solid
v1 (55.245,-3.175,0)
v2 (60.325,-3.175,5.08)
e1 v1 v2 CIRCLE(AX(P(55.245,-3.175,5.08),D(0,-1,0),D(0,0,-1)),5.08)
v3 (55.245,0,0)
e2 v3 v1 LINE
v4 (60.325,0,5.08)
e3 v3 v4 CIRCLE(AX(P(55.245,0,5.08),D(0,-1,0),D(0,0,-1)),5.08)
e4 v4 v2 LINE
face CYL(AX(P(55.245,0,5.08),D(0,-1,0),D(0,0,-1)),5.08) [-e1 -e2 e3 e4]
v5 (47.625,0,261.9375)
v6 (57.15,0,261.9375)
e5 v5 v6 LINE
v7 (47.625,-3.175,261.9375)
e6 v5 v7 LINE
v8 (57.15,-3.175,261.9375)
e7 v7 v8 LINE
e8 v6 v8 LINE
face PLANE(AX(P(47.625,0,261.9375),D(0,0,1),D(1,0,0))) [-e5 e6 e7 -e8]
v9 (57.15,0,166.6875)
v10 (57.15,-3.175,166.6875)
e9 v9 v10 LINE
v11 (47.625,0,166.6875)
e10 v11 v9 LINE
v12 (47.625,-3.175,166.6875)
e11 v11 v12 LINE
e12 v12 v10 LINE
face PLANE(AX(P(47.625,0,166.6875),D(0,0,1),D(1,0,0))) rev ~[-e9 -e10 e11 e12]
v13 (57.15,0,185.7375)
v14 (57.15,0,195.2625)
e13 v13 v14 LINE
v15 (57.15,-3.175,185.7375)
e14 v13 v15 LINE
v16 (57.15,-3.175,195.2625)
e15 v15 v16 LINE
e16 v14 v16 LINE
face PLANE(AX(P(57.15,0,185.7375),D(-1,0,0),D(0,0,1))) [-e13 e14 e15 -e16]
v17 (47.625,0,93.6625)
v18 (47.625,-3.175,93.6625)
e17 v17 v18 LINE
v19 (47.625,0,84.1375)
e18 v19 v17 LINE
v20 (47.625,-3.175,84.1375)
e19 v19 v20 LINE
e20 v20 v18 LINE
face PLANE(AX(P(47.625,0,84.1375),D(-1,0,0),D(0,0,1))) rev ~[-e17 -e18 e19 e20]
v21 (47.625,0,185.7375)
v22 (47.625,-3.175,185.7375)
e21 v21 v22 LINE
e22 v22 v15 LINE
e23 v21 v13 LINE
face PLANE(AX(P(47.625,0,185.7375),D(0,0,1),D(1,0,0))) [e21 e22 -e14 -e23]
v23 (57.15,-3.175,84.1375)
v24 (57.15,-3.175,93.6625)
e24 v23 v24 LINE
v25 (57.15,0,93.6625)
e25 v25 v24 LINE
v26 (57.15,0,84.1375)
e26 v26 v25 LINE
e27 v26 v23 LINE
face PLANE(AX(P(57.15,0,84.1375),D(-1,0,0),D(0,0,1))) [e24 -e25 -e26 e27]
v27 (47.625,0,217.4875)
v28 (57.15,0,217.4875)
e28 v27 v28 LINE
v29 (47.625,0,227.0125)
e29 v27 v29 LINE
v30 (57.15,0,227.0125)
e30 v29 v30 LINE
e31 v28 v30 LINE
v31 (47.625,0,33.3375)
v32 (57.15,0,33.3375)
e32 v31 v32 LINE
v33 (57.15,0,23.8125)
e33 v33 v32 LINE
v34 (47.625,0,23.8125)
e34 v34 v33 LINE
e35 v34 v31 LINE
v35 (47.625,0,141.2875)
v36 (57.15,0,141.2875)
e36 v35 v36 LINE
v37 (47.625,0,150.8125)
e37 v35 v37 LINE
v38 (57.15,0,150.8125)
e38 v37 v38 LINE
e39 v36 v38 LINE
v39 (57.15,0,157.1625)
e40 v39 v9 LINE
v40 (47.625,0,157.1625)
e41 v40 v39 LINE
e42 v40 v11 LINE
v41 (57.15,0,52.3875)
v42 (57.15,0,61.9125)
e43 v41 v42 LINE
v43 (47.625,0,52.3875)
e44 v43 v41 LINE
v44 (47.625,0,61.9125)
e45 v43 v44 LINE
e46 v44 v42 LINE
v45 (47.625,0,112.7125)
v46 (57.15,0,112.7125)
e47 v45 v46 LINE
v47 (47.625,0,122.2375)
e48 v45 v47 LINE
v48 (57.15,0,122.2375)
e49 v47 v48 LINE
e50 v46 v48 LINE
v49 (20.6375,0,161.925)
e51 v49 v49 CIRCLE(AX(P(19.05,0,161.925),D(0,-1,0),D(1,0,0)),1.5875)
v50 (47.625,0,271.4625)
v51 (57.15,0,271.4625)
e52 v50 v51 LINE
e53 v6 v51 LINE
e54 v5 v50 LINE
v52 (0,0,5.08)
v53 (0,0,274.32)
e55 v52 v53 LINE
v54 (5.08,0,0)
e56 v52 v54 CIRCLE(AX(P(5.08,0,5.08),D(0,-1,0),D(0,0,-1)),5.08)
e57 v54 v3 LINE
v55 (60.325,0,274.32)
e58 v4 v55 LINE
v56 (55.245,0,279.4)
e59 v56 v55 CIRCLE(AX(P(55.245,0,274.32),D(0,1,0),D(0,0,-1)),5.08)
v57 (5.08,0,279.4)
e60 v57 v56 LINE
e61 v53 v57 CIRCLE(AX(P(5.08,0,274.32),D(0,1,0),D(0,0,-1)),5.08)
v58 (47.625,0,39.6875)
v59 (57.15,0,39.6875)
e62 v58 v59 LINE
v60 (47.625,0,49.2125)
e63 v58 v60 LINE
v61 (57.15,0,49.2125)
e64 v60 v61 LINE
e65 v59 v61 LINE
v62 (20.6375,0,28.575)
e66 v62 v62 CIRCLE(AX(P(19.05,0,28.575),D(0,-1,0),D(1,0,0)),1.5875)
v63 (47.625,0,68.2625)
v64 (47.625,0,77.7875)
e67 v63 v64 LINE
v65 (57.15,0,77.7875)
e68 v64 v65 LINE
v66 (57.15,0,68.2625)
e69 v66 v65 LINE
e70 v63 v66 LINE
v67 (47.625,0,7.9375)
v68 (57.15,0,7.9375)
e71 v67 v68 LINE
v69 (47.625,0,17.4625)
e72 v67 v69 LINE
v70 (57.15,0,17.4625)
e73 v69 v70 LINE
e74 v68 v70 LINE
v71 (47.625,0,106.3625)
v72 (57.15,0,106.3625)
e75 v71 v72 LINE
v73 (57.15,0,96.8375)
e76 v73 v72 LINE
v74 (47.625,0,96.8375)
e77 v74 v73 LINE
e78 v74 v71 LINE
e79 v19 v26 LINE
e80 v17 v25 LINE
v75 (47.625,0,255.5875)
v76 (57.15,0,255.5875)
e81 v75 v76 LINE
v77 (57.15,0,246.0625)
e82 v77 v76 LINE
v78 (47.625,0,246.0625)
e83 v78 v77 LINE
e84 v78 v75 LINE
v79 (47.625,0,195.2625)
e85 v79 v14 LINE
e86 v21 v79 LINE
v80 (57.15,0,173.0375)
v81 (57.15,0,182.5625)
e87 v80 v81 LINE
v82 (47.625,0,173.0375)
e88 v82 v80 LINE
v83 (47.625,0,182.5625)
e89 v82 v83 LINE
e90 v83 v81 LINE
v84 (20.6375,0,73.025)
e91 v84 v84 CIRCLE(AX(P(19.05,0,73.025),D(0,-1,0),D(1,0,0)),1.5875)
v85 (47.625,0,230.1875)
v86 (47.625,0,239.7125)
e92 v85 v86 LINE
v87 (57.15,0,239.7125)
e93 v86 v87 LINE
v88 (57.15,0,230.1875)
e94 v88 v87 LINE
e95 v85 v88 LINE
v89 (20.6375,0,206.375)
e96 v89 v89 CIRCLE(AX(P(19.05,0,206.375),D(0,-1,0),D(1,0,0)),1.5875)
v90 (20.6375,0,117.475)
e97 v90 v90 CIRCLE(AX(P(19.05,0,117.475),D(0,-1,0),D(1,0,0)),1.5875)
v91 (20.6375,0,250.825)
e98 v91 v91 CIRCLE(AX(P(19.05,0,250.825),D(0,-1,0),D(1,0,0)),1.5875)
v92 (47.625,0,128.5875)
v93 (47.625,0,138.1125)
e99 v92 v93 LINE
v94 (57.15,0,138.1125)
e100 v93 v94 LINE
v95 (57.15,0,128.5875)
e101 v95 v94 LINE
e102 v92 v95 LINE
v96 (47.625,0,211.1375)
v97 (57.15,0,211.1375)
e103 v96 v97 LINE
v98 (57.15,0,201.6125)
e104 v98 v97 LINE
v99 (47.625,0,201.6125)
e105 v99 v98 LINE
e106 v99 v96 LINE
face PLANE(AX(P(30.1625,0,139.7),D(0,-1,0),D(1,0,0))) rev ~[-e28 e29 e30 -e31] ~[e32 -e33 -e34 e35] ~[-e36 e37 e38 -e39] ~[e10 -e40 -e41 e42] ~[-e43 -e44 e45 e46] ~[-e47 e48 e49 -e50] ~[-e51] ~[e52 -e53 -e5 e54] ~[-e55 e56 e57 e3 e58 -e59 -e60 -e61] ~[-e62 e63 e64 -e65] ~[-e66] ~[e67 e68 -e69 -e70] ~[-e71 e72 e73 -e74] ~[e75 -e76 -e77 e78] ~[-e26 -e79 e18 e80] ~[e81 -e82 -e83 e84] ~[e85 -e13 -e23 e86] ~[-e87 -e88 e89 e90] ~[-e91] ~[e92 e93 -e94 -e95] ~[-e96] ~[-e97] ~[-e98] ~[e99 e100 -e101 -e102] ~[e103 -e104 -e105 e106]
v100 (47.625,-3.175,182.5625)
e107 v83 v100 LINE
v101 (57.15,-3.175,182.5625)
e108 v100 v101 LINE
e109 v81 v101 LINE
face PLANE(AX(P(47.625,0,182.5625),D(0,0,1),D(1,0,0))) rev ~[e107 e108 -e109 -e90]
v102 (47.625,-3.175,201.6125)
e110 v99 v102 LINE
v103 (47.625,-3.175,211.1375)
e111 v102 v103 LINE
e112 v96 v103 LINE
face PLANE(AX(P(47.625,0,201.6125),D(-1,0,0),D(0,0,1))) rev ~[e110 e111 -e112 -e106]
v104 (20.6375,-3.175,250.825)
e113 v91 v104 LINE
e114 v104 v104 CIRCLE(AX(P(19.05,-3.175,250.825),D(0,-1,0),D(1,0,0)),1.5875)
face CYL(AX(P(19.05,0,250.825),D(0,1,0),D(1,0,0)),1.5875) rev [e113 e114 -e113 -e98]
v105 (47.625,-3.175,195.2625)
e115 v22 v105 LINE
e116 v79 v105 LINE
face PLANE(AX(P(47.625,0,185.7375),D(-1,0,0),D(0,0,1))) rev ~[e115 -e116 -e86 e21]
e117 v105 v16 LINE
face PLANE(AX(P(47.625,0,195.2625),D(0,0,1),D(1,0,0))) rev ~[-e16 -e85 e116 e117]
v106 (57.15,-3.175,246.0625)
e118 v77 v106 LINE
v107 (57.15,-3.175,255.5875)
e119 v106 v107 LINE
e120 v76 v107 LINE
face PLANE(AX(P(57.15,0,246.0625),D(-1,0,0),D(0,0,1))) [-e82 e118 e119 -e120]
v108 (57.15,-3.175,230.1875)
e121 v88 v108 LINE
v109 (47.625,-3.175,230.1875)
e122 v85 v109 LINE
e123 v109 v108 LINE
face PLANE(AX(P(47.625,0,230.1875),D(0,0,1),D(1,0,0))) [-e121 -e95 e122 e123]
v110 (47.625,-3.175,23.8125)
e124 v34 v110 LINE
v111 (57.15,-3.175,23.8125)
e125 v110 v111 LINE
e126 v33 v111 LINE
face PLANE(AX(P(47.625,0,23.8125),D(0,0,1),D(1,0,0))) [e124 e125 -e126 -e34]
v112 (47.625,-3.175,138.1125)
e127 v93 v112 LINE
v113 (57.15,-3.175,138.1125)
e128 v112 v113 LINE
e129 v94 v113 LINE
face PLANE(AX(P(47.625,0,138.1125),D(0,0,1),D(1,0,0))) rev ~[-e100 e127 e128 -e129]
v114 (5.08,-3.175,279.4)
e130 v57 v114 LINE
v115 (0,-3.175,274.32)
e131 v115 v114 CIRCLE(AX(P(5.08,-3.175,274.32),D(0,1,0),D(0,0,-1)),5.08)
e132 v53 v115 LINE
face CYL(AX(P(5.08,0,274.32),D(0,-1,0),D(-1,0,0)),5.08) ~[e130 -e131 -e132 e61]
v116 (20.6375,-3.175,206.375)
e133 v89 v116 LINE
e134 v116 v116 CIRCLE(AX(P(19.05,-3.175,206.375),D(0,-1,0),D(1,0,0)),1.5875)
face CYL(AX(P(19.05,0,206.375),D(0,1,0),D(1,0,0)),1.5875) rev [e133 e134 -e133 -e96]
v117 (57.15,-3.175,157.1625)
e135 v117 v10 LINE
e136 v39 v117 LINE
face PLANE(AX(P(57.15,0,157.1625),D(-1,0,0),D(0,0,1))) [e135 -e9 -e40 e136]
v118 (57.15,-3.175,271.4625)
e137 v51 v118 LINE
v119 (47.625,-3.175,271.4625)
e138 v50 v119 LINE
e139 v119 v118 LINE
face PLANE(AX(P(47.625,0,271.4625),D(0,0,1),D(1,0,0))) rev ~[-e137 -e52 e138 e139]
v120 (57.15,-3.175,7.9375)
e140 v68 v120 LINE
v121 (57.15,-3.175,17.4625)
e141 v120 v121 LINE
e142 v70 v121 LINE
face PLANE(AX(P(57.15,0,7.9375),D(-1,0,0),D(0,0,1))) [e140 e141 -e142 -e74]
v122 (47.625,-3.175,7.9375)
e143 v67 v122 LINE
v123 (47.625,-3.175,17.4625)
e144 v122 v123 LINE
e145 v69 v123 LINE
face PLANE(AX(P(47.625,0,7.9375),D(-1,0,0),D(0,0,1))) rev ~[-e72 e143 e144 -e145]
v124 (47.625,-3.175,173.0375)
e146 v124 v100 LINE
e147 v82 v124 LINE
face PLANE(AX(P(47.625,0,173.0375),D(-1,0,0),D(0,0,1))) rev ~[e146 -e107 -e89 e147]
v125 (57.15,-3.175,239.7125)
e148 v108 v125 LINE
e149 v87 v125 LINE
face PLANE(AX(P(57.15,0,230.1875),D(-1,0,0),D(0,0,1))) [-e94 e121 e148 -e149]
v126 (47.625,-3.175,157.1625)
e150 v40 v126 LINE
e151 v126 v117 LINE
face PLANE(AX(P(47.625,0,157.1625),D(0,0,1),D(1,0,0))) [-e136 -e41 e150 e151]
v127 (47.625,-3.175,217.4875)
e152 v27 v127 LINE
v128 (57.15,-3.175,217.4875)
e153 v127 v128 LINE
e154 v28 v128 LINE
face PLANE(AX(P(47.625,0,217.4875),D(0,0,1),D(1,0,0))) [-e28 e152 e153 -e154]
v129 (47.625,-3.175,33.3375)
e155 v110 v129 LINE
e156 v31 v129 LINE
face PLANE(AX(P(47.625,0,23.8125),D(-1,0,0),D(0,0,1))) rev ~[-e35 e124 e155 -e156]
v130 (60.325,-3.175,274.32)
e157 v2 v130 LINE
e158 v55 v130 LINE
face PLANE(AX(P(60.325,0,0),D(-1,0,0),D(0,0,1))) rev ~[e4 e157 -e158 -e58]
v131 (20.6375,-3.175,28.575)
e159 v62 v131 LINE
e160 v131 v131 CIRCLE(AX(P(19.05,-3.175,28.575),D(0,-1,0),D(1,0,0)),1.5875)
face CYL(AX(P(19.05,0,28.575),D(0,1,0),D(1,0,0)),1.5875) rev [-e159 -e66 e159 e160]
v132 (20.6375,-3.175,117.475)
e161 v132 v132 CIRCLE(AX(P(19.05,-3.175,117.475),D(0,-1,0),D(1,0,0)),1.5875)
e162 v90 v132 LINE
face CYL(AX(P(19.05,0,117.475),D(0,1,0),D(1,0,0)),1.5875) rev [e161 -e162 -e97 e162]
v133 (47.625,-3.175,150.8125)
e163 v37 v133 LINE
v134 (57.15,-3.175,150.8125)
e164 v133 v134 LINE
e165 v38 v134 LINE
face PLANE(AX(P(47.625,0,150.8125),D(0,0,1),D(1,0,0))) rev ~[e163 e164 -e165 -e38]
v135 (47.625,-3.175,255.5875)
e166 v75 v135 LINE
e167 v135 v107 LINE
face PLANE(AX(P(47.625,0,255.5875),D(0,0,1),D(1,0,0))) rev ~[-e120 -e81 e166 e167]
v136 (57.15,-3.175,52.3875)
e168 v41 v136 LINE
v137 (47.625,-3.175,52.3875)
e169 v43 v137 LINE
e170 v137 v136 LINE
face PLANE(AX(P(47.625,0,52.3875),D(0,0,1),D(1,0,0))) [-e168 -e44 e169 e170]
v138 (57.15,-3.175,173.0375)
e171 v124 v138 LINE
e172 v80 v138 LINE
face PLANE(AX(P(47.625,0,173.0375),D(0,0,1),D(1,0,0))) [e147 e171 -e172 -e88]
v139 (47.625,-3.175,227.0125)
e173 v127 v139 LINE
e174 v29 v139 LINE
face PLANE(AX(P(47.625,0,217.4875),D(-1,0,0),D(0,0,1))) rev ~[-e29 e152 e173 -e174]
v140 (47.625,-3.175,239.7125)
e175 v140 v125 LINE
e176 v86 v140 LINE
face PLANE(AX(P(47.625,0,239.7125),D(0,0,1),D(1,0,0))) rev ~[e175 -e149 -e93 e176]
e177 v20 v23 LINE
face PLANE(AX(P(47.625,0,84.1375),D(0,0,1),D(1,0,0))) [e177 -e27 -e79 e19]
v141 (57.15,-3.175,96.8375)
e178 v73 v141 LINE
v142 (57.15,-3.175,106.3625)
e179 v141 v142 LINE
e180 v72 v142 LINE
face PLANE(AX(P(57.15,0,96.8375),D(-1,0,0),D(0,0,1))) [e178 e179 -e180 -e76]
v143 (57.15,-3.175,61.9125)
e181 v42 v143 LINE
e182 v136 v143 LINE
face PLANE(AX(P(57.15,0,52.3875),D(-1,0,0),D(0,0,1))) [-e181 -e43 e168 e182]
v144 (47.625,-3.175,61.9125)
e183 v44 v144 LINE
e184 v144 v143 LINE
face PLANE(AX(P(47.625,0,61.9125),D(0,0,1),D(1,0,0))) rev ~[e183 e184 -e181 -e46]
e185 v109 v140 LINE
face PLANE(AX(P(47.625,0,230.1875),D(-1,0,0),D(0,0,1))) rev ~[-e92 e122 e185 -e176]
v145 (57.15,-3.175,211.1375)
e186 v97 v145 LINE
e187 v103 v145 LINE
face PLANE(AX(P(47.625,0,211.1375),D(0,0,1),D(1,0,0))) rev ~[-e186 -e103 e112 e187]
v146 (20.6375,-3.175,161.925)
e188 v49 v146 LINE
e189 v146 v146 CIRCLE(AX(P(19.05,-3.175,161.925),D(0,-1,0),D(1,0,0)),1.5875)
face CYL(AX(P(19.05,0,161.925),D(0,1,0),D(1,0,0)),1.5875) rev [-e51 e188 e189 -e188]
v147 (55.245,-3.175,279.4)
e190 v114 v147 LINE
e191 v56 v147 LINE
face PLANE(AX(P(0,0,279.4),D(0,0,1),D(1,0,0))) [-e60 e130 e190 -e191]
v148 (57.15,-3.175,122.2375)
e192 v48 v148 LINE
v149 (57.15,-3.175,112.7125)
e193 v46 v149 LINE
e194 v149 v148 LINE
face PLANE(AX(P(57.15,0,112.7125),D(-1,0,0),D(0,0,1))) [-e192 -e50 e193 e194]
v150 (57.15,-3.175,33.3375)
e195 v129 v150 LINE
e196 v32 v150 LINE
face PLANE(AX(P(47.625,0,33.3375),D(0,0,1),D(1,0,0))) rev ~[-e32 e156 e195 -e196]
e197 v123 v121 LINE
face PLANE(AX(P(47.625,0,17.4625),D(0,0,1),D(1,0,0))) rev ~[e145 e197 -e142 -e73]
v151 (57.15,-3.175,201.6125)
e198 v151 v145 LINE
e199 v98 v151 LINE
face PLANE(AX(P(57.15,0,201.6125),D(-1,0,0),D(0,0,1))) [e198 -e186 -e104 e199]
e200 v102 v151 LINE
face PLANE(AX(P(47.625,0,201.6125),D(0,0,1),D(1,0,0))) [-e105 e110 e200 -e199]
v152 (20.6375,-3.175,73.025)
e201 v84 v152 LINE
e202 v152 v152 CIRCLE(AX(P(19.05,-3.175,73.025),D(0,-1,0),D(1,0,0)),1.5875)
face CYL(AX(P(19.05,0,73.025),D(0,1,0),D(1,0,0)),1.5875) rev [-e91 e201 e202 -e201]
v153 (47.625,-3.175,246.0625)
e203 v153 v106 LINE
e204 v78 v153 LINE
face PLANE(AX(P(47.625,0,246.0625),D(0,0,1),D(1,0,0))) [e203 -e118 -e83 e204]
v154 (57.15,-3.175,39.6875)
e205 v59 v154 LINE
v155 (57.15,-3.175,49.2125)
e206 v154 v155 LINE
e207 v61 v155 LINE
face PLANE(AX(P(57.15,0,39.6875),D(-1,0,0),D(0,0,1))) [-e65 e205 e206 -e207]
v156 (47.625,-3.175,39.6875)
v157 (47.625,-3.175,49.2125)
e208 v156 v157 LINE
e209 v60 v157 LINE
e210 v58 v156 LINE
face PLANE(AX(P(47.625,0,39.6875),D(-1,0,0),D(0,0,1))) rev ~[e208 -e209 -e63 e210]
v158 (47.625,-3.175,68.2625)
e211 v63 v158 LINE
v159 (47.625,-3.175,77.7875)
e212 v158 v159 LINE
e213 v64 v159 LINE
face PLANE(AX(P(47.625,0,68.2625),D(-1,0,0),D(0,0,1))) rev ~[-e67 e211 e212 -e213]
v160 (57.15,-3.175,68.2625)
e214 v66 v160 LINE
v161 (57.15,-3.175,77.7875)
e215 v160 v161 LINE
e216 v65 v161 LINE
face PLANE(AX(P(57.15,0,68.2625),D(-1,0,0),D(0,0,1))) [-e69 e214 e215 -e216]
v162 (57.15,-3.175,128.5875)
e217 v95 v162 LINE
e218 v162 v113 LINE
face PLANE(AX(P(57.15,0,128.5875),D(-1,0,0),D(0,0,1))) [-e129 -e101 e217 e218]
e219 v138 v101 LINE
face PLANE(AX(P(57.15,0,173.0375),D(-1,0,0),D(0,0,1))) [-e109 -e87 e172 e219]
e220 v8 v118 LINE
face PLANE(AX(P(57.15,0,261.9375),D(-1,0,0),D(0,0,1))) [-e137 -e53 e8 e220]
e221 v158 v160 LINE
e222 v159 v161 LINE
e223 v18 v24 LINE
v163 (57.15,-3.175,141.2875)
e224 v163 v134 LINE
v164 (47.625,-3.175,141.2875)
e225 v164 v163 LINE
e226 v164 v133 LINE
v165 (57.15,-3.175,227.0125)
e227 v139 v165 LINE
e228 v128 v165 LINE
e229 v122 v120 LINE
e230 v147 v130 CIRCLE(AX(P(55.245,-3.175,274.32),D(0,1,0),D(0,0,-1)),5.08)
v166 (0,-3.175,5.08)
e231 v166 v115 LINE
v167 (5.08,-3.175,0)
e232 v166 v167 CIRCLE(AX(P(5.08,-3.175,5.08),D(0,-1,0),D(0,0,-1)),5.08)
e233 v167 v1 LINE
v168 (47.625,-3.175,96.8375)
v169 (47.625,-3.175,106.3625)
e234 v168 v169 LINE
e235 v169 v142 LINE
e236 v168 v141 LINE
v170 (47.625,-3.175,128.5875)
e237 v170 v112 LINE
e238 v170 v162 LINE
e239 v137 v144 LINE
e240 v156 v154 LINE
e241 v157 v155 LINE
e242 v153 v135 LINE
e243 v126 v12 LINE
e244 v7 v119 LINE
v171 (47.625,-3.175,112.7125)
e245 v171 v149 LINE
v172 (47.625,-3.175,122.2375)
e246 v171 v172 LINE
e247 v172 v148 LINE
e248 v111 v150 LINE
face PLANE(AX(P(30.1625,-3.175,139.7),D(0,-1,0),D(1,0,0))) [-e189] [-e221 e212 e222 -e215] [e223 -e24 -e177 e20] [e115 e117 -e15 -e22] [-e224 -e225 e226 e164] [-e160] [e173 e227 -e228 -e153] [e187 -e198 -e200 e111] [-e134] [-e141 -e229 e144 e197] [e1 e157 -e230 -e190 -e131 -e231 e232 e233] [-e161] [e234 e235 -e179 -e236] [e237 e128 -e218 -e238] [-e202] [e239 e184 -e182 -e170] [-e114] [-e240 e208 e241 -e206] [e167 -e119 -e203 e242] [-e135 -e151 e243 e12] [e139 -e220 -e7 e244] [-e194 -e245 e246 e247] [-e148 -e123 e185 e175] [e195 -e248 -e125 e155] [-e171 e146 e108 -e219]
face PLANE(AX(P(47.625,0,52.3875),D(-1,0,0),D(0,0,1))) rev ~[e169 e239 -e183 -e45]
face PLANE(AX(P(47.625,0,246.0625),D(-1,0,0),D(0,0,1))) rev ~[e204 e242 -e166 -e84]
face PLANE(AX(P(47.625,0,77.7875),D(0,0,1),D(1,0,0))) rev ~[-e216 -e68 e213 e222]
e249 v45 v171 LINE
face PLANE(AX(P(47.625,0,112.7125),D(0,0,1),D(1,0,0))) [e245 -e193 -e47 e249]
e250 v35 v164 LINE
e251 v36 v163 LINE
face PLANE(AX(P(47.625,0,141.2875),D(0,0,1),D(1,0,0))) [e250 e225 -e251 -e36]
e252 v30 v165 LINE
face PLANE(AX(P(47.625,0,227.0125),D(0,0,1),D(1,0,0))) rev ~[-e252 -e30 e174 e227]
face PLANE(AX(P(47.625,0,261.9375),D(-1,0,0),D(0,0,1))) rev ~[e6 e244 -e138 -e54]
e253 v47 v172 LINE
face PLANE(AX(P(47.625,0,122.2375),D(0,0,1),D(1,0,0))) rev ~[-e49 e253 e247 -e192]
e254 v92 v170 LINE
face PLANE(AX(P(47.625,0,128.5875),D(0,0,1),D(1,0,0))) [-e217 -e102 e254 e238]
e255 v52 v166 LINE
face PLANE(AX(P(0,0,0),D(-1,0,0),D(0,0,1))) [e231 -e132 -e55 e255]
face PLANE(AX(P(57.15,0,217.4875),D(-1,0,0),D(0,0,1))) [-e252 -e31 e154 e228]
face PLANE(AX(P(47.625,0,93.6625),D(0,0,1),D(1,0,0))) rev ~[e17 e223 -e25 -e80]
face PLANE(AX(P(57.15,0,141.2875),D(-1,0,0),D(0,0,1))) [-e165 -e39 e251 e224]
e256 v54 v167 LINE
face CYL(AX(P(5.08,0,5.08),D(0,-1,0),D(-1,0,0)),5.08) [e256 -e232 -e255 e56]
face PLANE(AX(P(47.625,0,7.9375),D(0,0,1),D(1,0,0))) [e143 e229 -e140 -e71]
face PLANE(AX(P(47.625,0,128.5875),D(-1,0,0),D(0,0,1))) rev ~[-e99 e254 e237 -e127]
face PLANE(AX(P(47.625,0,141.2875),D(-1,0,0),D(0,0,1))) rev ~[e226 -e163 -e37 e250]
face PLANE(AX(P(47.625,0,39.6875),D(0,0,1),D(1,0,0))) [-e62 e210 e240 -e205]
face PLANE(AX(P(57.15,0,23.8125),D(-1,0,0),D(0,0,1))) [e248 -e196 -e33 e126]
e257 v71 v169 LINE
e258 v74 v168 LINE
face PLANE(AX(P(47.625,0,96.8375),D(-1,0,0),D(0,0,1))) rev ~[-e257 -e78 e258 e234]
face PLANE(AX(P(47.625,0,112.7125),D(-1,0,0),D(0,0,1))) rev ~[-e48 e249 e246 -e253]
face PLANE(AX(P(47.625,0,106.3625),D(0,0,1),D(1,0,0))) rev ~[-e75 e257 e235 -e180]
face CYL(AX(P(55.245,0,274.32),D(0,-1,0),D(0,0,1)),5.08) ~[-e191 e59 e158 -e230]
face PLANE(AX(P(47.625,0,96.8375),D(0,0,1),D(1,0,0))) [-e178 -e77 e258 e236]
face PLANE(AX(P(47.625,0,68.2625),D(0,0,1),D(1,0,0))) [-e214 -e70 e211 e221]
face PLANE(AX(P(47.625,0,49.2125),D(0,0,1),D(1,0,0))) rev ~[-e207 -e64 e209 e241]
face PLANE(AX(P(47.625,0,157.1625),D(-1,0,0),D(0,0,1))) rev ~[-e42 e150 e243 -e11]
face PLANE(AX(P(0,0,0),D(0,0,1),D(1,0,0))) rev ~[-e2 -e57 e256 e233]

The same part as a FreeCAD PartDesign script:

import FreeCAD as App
import Part
import Sketcher

V = App.Vector
Q = App.Units.Quantity


def edges_at(feature, points):
    """Names of the edges that pass closest to the given points."""
    edges = feature.Shape.Edges
    near = lambda p: min(range(len(edges)), key=lambda i: edges[i].distToShape(Part.Vertex(*p))[0])
    return sorted({f"Edge{near(p) + 1}" for p in points})

doc = App.newDocument("Part")
body = doc.addObject("PartDesign::Body", "Body")

# Sketch on XZ plane
sketch1 = doc.addObject("Sketcher::SketchObject", "Sketch")
body.addObject(sketch1)
sketch1.AttachmentSupport = (doc.XZ_Plane, [""])
sketch1.MapMode = "FlatFace"
sketch1.addGeometry(Part.LineSegment(V(0, 279.4, 0), V(0, 0, 0)), False)
sketch1.addGeometry(Part.LineSegment(V(0, 0, 0), V(60.325, 0, 0)), False)
sketch1.addGeometry(Part.LineSegment(V(60.325, 0, 0), V(60.325, 279.4, 0)), False)
sketch1.addGeometry(Part.LineSegment(V(60.325, 279.4, 0), V(0, 279.4, 0)), False)
sketch1.addGeometry(Part.Circle(V(19.05, 28.575, 0), V(0, 0, 1), 1.5875), False)
sketch1.addGeometry(Part.Circle(V(19.05, 73.025, 0), V(0, 0, 1), 1.5875), False)
sketch1.addGeometry(Part.Circle(V(19.05, 117.475, 0), V(0, 0, 1), 1.5875), False)
sketch1.addGeometry(Part.LineSegment(V(57.15, 7.9375, 0), V(47.625, 7.9375, 0)), False)
sketch1.addGeometry(Part.LineSegment(V(47.625, 7.9375, 0), V(47.625, 17.4625, 0)), False)
sketch1.addGeometry(Part.LineSegment(V(47.625, 17.4625, 0), V(57.15, 17.4625, 0)), False)
sketch1.addGeometry(Part.LineSegment(V(57.15, 17.4625, 0), V(57.15, 7.9375, 0)), False)
sketch1.addGeometry(Part.LineSegment(V(57.15, 23.8125, 0), V(47.625, 23.8125, 0)), False)
sketch1.addGeometry(Part.LineSegment(V(47.625, 23.8125, 0), V(47.625, 33.3375, 0)), False)
sketch1.addGeometry(Part.LineSegment(V(47.625, 33.3375, 0), V(57.15, 33.3375, 0)), False)
sketch1.addGeometry(Part.LineSegment(V(57.15, 33.3375, 0), V(57.15, 23.8125, 0)), False)
sketch1.addGeometry(Part.LineSegment(V(57.15, 39.6875, 0), V(47.625, 39.6875, 0)), False)
sketch1.addGeometry(Part.LineSegment(V(47.625, 39.6875, 0), V(47.625, 49.2125, 0)), False)
sketch1.addGeometry(Part.LineSegment(V(47.625, 49.2125, 0), V(57.15, 49.2125, 0)), False)
sketch1.addGeometry(Part.LineSegment(V(57.15, 49.2125, 0), V(57.15, 39.6875, 0)), False)
sketch1.addGeometry(Part.LineSegment(V(57.15, 52.3875, 0), V(47.625, 52.3875, 0)), False)
sketch1.addGeometry(Part.LineSegment(V(47.625, 52.3875, 0), V(47.625, 61.9125, 0)), False)
sketch1.addGeometry(Part.LineSegment(V(47.625, 61.9125, 0), V(57.15, 61.9125, 0)), False)
sketch1.addGeometry(Part.LineSegment(V(57.15, 61.9125, 0), V(57.15, 52.3875, 0)), False)
sketch1.addGeometry(Part.LineSegment(V(57.15, 68.2625, 0), V(47.625, 68.2625, 0)), False)
sketch1.addGeometry(Part.LineSegment(V(47.625, 68.2625, 0), V(47.625, 77.7875, 0)), False)
sketch1.addGeometry(Part.LineSegment(V(47.625, 77.7875, 0), V(57.15, 77.7875, 0)), False)
sketch1.addGeometry(Part.LineSegment(V(57.15, 77.7875, 0), V(57.15, 68.2625, 0)), False)
sketch1.addGeometry(Part.LineSegment(V(57.15, 84.1375, 0), V(47.625, 84.1375, 0)), False)
sketch1.addGeometry(Part.LineSegment(V(47.625, 84.1375, 0), V(47.625, 93.6625, 0)), False)
sketch1.addGeometry(Part.LineSegment(V(47.625, 93.6625, 0), V(57.15, 93.6625, 0)), False)
sketch1.addGeometry(Part.LineSegment(V(57.15, 93.6625, 0), V(57.15, 84.1375, 0)), False)
sketch1.addGeometry(Part.LineSegment(V(57.15, 96.8375, 0), V(47.625, 96.8375, 0)), False)
sketch1.addGeometry(Part.LineSegment(V(47.625, 96.8375, 0), V(47.625, 106.3625, 0)), False)
sketch1.addGeometry(Part.LineSegment(V(47.625, 106.3625, 0), V(57.15, 106.3625, 0)), False)
sketch1.addGeometry(Part.LineSegment(V(57.15, 106.3625, 0), V(57.15, 96.8375, 0)), False)
sketch1.addGeometry(Part.LineSegment(V(57.15, 112.7125, 0), V(47.625, 112.7125, 0)), False)
sketch1.addGeometry(Part.LineSegment(V(47.625, 112.7125, 0), V(47.625, 122.2375, 0)), False)
sketch1.addGeometry(Part.LineSegment(V(47.625, 122.2375, 0), V(57.15, 122.2375, 0)), False)
sketch1.addGeometry(Part.LineSegment(V(57.15, 122.2375, 0), V(57.15, 112.7125, 0)), False)
sketch1.addGeometry(Part.LineSegment(V(57.15, 128.5875, 0), V(47.625, 128.5875, 0)), False)
sketch1.addGeometry(Part.LineSegment(V(47.625, 128.5875, 0), V(47.625, 138.1125, 0)), False)
sketch1.addGeometry(Part.LineSegment(V(47.625, 138.1125, 0), V(57.15, 138.1125, 0)), False)
sketch1.addGeometry(Part.LineSegment(V(57.15, 138.1125, 0), V(57.15, 128.5875, 0)), False)
sketch1.addGeometry(Part.Circle(V(19.05, 161.925, 0), V(0, 0, 1), 1.5875), False)
sketch1.addGeometry(Part.Circle(V(19.05, 206.375, 0), V(0, 0, 1), 1.5875), False)
sketch1.addGeometry(Part.Circle(V(19.05, 250.825, 0), V(0, 0, 1), 1.5875), False)
sketch1.addGeometry(Part.LineSegment(V(57.15, 141.2875, 0), V(47.625, 141.2875, 0)), False)
sketch1.addGeometry(Part.LineSegment(V(47.625, 141.2875, 0), V(47.625, 150.8125, 0)), False)
sketch1.addGeometry(Part.LineSegment(V(47.625, 150.8125, 0), V(57.15, 150.8125, 0)), False)
sketch1.addGeometry(Part.LineSegment(V(57.15, 150.8125, 0), V(57.15, 141.2875, 0)), False)
sketch1.addGeometry(Part.LineSegment(V(57.15, 157.1625, 0), V(47.625, 157.1625, 0)), False)
sketch1.addGeometry(Part.LineSegment(V(47.625, 157.1625, 0), V(47.625, 166.6875, 0)), False)
sketch1.addGeometry(Part.LineSegment(V(47.625, 166.6875, 0), V(57.15, 166.6875, 0)), False)
sketch1.addGeometry(Part.LineSegment(V(57.15, 166.6875, 0), V(57.15, 157.1625, 0)), False)
sketch1.addGeometry(Part.LineSegment(V(57.15, 173.0375, 0), V(47.625, 173.0375, 0)), False)
sketch1.addGeometry(Part.LineSegment(V(47.625, 173.0375, 0), V(47.625, 182.5625, 0)), False)
sketch1.addGeometry(Part.LineSegment(V(47.625, 182.5625, 0), V(57.15, 182.5625, 0)), False)
sketch1.addGeometry(Part.LineSegment(V(57.15, 182.5625, 0), V(57.15, 173.0375, 0)), False)
sketch1.addGeometry(Part.LineSegment(V(57.15, 185.7375, 0), V(47.625, 185.7375, 0)), False)
sketch1.addGeometry(Part.LineSegment(V(47.625, 185.7375, 0), V(47.625, 195.2625, 0)), False)
sketch1.addGeometry(Part.LineSegment(V(47.625, 195.2625, 0), V(57.15, 195.2625, 0)), False)
sketch1.addGeometry(Part.LineSegment(V(57.15, 195.2625, 0), V(57.15, 185.7375, 0)), False)
sketch1.addGeometry(Part.LineSegment(V(57.15, 201.6125, 0), V(47.625, 201.6125, 0)), False)
sketch1.addGeometry(Part.LineSegment(V(47.625, 201.6125, 0), V(47.625, 211.1375, 0)), False)
sketch1.addGeometry(Part.LineSegment(V(47.625, 211.1375, 0), V(57.15, 211.1375, 0)), False)
sketch1.addGeometry(Part.LineSegment(V(57.15, 211.1375, 0), V(57.15, 201.6125, 0)), False)
sketch1.addGeometry(Part.LineSegment(V(57.15, 217.4875, 0), V(47.625, 217.4875, 0)), False)
sketch1.addGeometry(Part.LineSegment(V(47.625, 217.4875, 0), V(47.625, 227.0125, 0)), False)
sketch1.addGeometry(Part.LineSegment(V(47.625, 227.0125, 0), V(57.15, 227.0125, 0)), False)
sketch1.addGeometry(Part.LineSegment(V(57.15, 227.0125, 0), V(57.15, 217.4875, 0)), False)
sketch1.addGeometry(Part.LineSegment(V(57.15, 230.1875, 0), V(47.625, 230.1875, 0)), False)
sketch1.addGeometry(Part.LineSegment(V(47.625, 230.1875, 0), V(47.625, 239.7125, 0)), False)
sketch1.addGeometry(Part.LineSegment(V(47.625, 239.7125, 0), V(57.15, 239.7125, 0)), False)
sketch1.addGeometry(Part.LineSegment(V(57.15, 239.7125, 0), V(57.15, 230.1875, 0)), False)
sketch1.addGeometry(Part.LineSegment(V(57.15, 246.0625, 0), V(47.625, 246.0625, 0)), False)
sketch1.addGeometry(Part.LineSegment(V(47.625, 246.0625, 0), V(47.625, 255.5875, 0)), False)
sketch1.addGeometry(Part.LineSegment(V(47.625, 255.5875, 0), V(57.15, 255.5875, 0)), False)
sketch1.addGeometry(Part.LineSegment(V(57.15, 255.5875, 0), V(57.15, 246.0625, 0)), False)
sketch1.addGeometry(Part.LineSegment(V(57.15, 261.9375, 0), V(47.625, 261.9375, 0)), False)
sketch1.addGeometry(Part.LineSegment(V(47.625, 261.9375, 0), V(47.625, 271.4625, 0)), False)
sketch1.addGeometry(Part.LineSegment(V(47.625, 271.4625, 0), V(57.15, 271.4625, 0)), False)
sketch1.addGeometry(Part.LineSegment(V(57.15, 271.4625, 0), V(57.15, 261.9375, 0)), False)
sketch1.addConstraint(Sketcher.Constraint("Coincident", 0, 2, 1, 1))
sketch1.addConstraint(Sketcher.Constraint("Coincident", 1, 2, 2, 1))
sketch1.addConstraint(Sketcher.Constraint("Coincident", 2, 2, 3, 1))
sketch1.addConstraint(Sketcher.Constraint("Coincident", 3, 2, 0, 1))
sketch1.addConstraint(Sketcher.Constraint("Coincident", 7, 2, 8, 1))
sketch1.addConstraint(Sketcher.Constraint("Coincident", 8, 2, 9, 1))
sketch1.addConstraint(Sketcher.Constraint("Coincident", 9, 2, 10, 1))
sketch1.addConstraint(Sketcher.Constraint("Coincident", 10, 2, 7, 1))
sketch1.addConstraint(Sketcher.Constraint("Coincident", 11, 2, 12, 1))
sketch1.addConstraint(Sketcher.Constraint("Coincident", 12, 2, 13, 1))
sketch1.addConstraint(Sketcher.Constraint("Coincident", 13, 2, 14, 1))
sketch1.addConstraint(Sketcher.Constraint("Coincident", 14, 2, 11, 1))
sketch1.addConstraint(Sketcher.Constraint("Coincident", 15, 2, 16, 1))
sketch1.addConstraint(Sketcher.Constraint("Coincident", 16, 2, 17, 1))
sketch1.addConstraint(Sketcher.Constraint("Coincident", 17, 2, 18, 1))
sketch1.addConstraint(Sketcher.Constraint("Coincident", 18, 2, 15, 1))
sketch1.addConstraint(Sketcher.Constraint("Coincident", 19, 2, 20, 1))
sketch1.addConstraint(Sketcher.Constraint("Coincident", 20, 2, 21, 1))
sketch1.addConstraint(Sketcher.Constraint("Coincident", 21, 2, 22, 1))
sketch1.addConstraint(Sketcher.Constraint("Coincident", 22, 2, 19, 1))
sketch1.addConstraint(Sketcher.Constraint("Coincident", 23, 2, 24, 1))
sketch1.addConstraint(Sketcher.Constraint("Coincident", 24, 2, 25, 1))
sketch1.addConstraint(Sketcher.Constraint("Coincident", 25, 2, 26, 1))
sketch1.addConstraint(Sketcher.Constraint("Coincident", 26, 2, 23, 1))
sketch1.addConstraint(Sketcher.Constraint("Coincident", 27, 2, 28, 1))
sketch1.addConstraint(Sketcher.Constraint("Coincident", 28, 2, 29, 1))
sketch1.addConstraint(Sketcher.Constraint("Coincident", 29, 2, 30, 1))
sketch1.addConstraint(Sketcher.Constraint("Coincident", 30, 2, 27, 1))
sketch1.addConstraint(Sketcher.Constraint("Coincident", 31, 2, 32, 1))
sketch1.addConstraint(Sketcher.Constraint("Coincident", 32, 2, 33, 1))
sketch1.addConstraint(Sketcher.Constraint("Coincident", 33, 2, 34, 1))
sketch1.addConstraint(Sketcher.Constraint("Coincident", 34, 2, 31, 1))
sketch1.addConstraint(Sketcher.Constraint("Coincident", 35, 2, 36, 1))
sketch1.addConstraint(Sketcher.Constraint("Coincident", 36, 2, 37, 1))
sketch1.addConstraint(Sketcher.Constraint("Coincident", 37, 2, 38, 1))
sketch1.addConstraint(Sketcher.Constraint("Coincident", 38, 2, 35, 1))
sketch1.addConstraint(Sketcher.Constraint("Coincident", 39, 2, 40, 1))
sketch1.addConstraint(Sketcher.Constraint("Coincident", 40, 2, 41, 1))
sketch1.addConstraint(Sketcher.Constraint("Coincident", 41, 2, 42, 1))
sketch1.addConstraint(Sketcher.Constraint("Coincident", 42, 2, 39, 1))
sketch1.addConstraint(Sketcher.Constraint("Coincident", 46, 2, 47, 1))
sketch1.addConstraint(Sketcher.Constraint("Coincident", 47, 2, 48, 1))
sketch1.addConstraint(Sketcher.Constraint("Coincident", 48, 2, 49, 1))
sketch1.addConstraint(Sketcher.Constraint("Coincident", 49, 2, 46, 1))
sketch1.addConstraint(Sketcher.Constraint("Coincident", 50, 2, 51, 1))
sketch1.addConstraint(Sketcher.Constraint("Coincident", 51, 2, 52, 1))
sketch1.addConstraint(Sketcher.Constraint("Coincident", 52, 2, 53, 1))
sketch1.addConstraint(Sketcher.Constraint("Coincident", 53, 2, 50, 1))
sketch1.addConstraint(Sketcher.Constraint("Coincident", 54, 2, 55, 1))
sketch1.addConstraint(Sketcher.Constraint("Coincident", 55, 2, 56, 1))
sketch1.addConstraint(Sketcher.Constraint("Coincident", 56, 2, 57, 1))
sketch1.addConstraint(Sketcher.Constraint("Coincident", 57, 2, 54, 1))
sketch1.addConstraint(Sketcher.Constraint("Coincident", 58, 2, 59, 1))
sketch1.addConstraint(Sketcher.Constraint("Coincident", 59, 2, 60, 1))
sketch1.addConstraint(Sketcher.Constraint("Coincident", 60, 2, 61, 1))
sketch1.addConstraint(Sketcher.Constraint("Coincident", 61, 2, 58, 1))
sketch1.addConstraint(Sketcher.Constraint("Coincident", 62, 2, 63, 1))
sketch1.addConstraint(Sketcher.Constraint("Coincident", 63, 2, 64, 1))
sketch1.addConstraint(Sketcher.Constraint("Coincident", 64, 2, 65, 1))
sketch1.addConstraint(Sketcher.Constraint("Coincident", 65, 2, 62, 1))
sketch1.addConstraint(Sketcher.Constraint("Coincident", 66, 2, 67, 1))
sketch1.addConstraint(Sketcher.Constraint("Coincident", 67, 2, 68, 1))
sketch1.addConstraint(Sketcher.Constraint("Coincident", 68, 2, 69, 1))
sketch1.addConstraint(Sketcher.Constraint("Coincident", 69, 2, 66, 1))
sketch1.addConstraint(Sketcher.Constraint("Coincident", 70, 2, 71, 1))
sketch1.addConstraint(Sketcher.Constraint("Coincident", 71, 2, 72, 1))
sketch1.addConstraint(Sketcher.Constraint("Coincident", 72, 2, 73, 1))
sketch1.addConstraint(Sketcher.Constraint("Coincident", 73, 2, 70, 1))
sketch1.addConstraint(Sketcher.Constraint("Coincident", 74, 2, 75, 1))
sketch1.addConstraint(Sketcher.Constraint("Coincident", 75, 2, 76, 1))
sketch1.addConstraint(Sketcher.Constraint("Coincident", 76, 2, 77, 1))
sketch1.addConstraint(Sketcher.Constraint("Coincident", 77, 2, 74, 1))
sketch1.addConstraint(Sketcher.Constraint("Coincident", 78, 2, 79, 1))
sketch1.addConstraint(Sketcher.Constraint("Coincident", 79, 2, 80, 1))
sketch1.addConstraint(Sketcher.Constraint("Coincident", 80, 2, 81, 1))
sketch1.addConstraint(Sketcher.Constraint("Coincident", 81, 2, 78, 1))
sketch1.addConstraint(Sketcher.Constraint("Vertical", 0))
sketch1.addConstraint(Sketcher.Constraint("Horizontal", 1))
sketch1.addConstraint(Sketcher.Constraint("Vertical", 2))
sketch1.addConstraint(Sketcher.Constraint("Horizontal", 3))
sketch1.addConstraint(Sketcher.Constraint("Horizontal", 7))
sketch1.addConstraint(Sketcher.Constraint("Vertical", 8))
sketch1.addConstraint(Sketcher.Constraint("Horizontal", 9))
sketch1.addConstraint(Sketcher.Constraint("Vertical", 10))
sketch1.addConstraint(Sketcher.Constraint("Horizontal", 11))
sketch1.addConstraint(Sketcher.Constraint("Vertical", 12))
sketch1.addConstraint(Sketcher.Constraint("Horizontal", 13))
sketch1.addConstraint(Sketcher.Constraint("Vertical", 14))
sketch1.addConstraint(Sketcher.Constraint("Horizontal", 15))
sketch1.addConstraint(Sketcher.Constraint("Vertical", 16))
sketch1.addConstraint(Sketcher.Constraint("Horizontal", 17))
sketch1.addConstraint(Sketcher.Constraint("Vertical", 18))
sketch1.addConstraint(Sketcher.Constraint("Horizontal", 19))
sketch1.addConstraint(Sketcher.Constraint("Vertical", 20))
sketch1.addConstraint(Sketcher.Constraint("Horizontal", 21))
sketch1.addConstraint(Sketcher.Constraint("Vertical", 22))
sketch1.addConstraint(Sketcher.Constraint("Horizontal", 23))
sketch1.addConstraint(Sketcher.Constraint("Vertical", 24))
sketch1.addConstraint(Sketcher.Constraint("Horizontal", 25))
sketch1.addConstraint(Sketcher.Constraint("Vertical", 26))
sketch1.addConstraint(Sketcher.Constraint("Horizontal", 27))
sketch1.addConstraint(Sketcher.Constraint("Vertical", 28))
sketch1.addConstraint(Sketcher.Constraint("Horizontal", 29))
sketch1.addConstraint(Sketcher.Constraint("Vertical", 30))
sketch1.addConstraint(Sketcher.Constraint("Horizontal", 31))
sketch1.addConstraint(Sketcher.Constraint("Vertical", 32))
sketch1.addConstraint(Sketcher.Constraint("Horizontal", 33))
sketch1.addConstraint(Sketcher.Constraint("Vertical", 34))
sketch1.addConstraint(Sketcher.Constraint("Horizontal", 35))
sketch1.addConstraint(Sketcher.Constraint("Vertical", 36))
sketch1.addConstraint(Sketcher.Constraint("Horizontal", 37))
sketch1.addConstraint(Sketcher.Constraint("Vertical", 38))
sketch1.addConstraint(Sketcher.Constraint("Horizontal", 39))
sketch1.addConstraint(Sketcher.Constraint("Vertical", 40))
sketch1.addConstraint(Sketcher.Constraint("Horizontal", 41))
sketch1.addConstraint(Sketcher.Constraint("Vertical", 42))
sketch1.addConstraint(Sketcher.Constraint("Horizontal", 46))
sketch1.addConstraint(Sketcher.Constraint("Vertical", 47))
sketch1.addConstraint(Sketcher.Constraint("Horizontal", 48))
sketch1.addConstraint(Sketcher.Constraint("Vertical", 49))
sketch1.addConstraint(Sketcher.Constraint("Horizontal", 50))
sketch1.addConstraint(Sketcher.Constraint("Vertical", 51))
sketch1.addConstraint(Sketcher.Constraint("Horizontal", 52))
sketch1.addConstraint(Sketcher.Constraint("Vertical", 53))
sketch1.addConstraint(Sketcher.Constraint("Horizontal", 54))
sketch1.addConstraint(Sketcher.Constraint("Vertical", 55))
sketch1.addConstraint(Sketcher.Constraint("Horizontal", 56))
sketch1.addConstraint(Sketcher.Constraint("Vertical", 57))
sketch1.addConstraint(Sketcher.Constraint("Horizontal", 58))
sketch1.addConstraint(Sketcher.Constraint("Vertical", 59))
sketch1.addConstraint(Sketcher.Constraint("Horizontal", 60))
sketch1.addConstraint(Sketcher.Constraint("Vertical", 61))
sketch1.addConstraint(Sketcher.Constraint("Horizontal", 62))
sketch1.addConstraint(Sketcher.Constraint("Vertical", 63))
sketch1.addConstraint(Sketcher.Constraint("Horizontal", 64))
sketch1.addConstraint(Sketcher.Constraint("Vertical", 65))
sketch1.addConstraint(Sketcher.Constraint("Horizontal", 66))
sketch1.addConstraint(Sketcher.Constraint("Vertical", 67))
sketch1.addConstraint(Sketcher.Constraint("Horizontal", 68))
sketch1.addConstraint(Sketcher.Constraint("Vertical", 69))
sketch1.addConstraint(Sketcher.Constraint("Horizontal", 70))
sketch1.addConstraint(Sketcher.Constraint("Vertical", 71))
sketch1.addConstraint(Sketcher.Constraint("Horizontal", 72))
sketch1.addConstraint(Sketcher.Constraint("Vertical", 73))
sketch1.addConstraint(Sketcher.Constraint("Horizontal", 74))
sketch1.addConstraint(Sketcher.Constraint("Vertical", 75))
sketch1.addConstraint(Sketcher.Constraint("Horizontal", 76))
sketch1.addConstraint(Sketcher.Constraint("Vertical", 77))
sketch1.addConstraint(Sketcher.Constraint("Horizontal", 78))
sketch1.addConstraint(Sketcher.Constraint("Vertical", 79))
sketch1.addConstraint(Sketcher.Constraint("Horizontal", 80))
sketch1.addConstraint(Sketcher.Constraint("Vertical", 81))
sketch1.addConstraint(Sketcher.Constraint("Coincident", 0, 2, -1, 1))
sketch1.addConstraint(Sketcher.Constraint("Equal", 4, 5))
sketch1.addConstraint(Sketcher.Constraint("Equal", 5, 6))
sketch1.addConstraint(Sketcher.Constraint("Equal", 6, 43))
sketch1.addConstraint(Sketcher.Constraint("Equal", 43, 44))
sketch1.addConstraint(Sketcher.Constraint("Equal", 44, 45))
sketch1.addConstraint(Sketcher.Constraint("Vertical", 4, 3, 5, 3))
sketch1.addConstraint(Sketcher.Constraint("Vertical", 5, 3, 6, 3))
sketch1.addConstraint(Sketcher.Constraint("Vertical", 6, 3, 43, 3))
sketch1.addConstraint(Sketcher.Constraint("Vertical", 43, 3, 44, 3))
sketch1.addConstraint(Sketcher.Constraint("Vertical", 44, 3, 45, 3))
sketch1.addConstraint(Sketcher.Constraint("Vertical", 8, 2, 11, 2))
sketch1.addConstraint(Sketcher.Constraint("Vertical", 10, 2, 13, 2))
sketch1.addConstraint(Sketcher.Constraint("Vertical", 12, 2, 15, 2))
sketch1.addConstraint(Sketcher.Constraint("Vertical", 14, 2, 17, 2))
sketch1.addConstraint(Sketcher.Constraint("Vertical", 16, 2, 19, 2))
sketch1.addConstraint(Sketcher.Constraint("Vertical", 18, 2, 21, 2))
sketch1.addConstraint(Sketcher.Constraint("Vertical", 20, 2, 23, 2))
sketch1.addConstraint(Sketcher.Constraint("Vertical", 22, 2, 25, 2))
sketch1.addConstraint(Sketcher.Constraint("Vertical", 24, 2, 27, 2))
sketch1.addConstraint(Sketcher.Constraint("Vertical", 26, 2, 29, 2))
sketch1.addConstraint(Sketcher.Constraint("Vertical", 28, 2, 31, 2))
sketch1.addConstraint(Sketcher.Constraint("Vertical", 30, 2, 33, 2))
sketch1.addConstraint(Sketcher.Constraint("Vertical", 32, 2, 35, 2))
sketch1.addConstraint(Sketcher.Constraint("Vertical", 34, 2, 37, 2))
sketch1.addConstraint(Sketcher.Constraint("Vertical", 36, 2, 39, 2))
sketch1.addConstraint(Sketcher.Constraint("Vertical", 38, 2, 41, 2))
sketch1.addConstraint(Sketcher.Constraint("Vertical", 40, 2, 46, 2))
sketch1.addConstraint(Sketcher.Constraint("Vertical", 42, 2, 48, 2))
sketch1.addConstraint(Sketcher.Constraint("Vertical", 47, 2, 50, 2))
sketch1.addConstraint(Sketcher.Constraint("Vertical", 49, 2, 52, 2))
sketch1.addConstraint(Sketcher.Constraint("Vertical", 51, 2, 54, 2))
sketch1.addConstraint(Sketcher.Constraint("Vertical", 53, 2, 56, 2))
sketch1.addConstraint(Sketcher.Constraint("Vertical", 55, 2, 58, 2))
sketch1.addConstraint(Sketcher.Constraint("Vertical", 57, 2, 60, 2))
sketch1.addConstraint(Sketcher.Constraint("Vertical", 59, 2, 62, 2))
sketch1.addConstraint(Sketcher.Constraint("Vertical", 61, 2, 64, 2))
sketch1.addConstraint(Sketcher.Constraint("Vertical", 63, 2, 66, 2))
sketch1.addConstraint(Sketcher.Constraint("Vertical", 65, 2, 68, 2))
sketch1.addConstraint(Sketcher.Constraint("Vertical", 67, 2, 70, 2))
sketch1.addConstraint(Sketcher.Constraint("Vertical", 69, 2, 72, 2))
sketch1.addConstraint(Sketcher.Constraint("Vertical", 71, 2, 74, 2))
sketch1.addConstraint(Sketcher.Constraint("Vertical", 73, 2, 76, 2))
sketch1.addConstraint(Sketcher.Constraint("Vertical", 75, 2, 78, 2))
sketch1.addConstraint(Sketcher.Constraint("Vertical", 77, 2, 80, 2))
sketch1.addConstraint(Sketcher.Constraint("Equal", 80, 8))
sketch1.addConstraint(Sketcher.Constraint("Equal", 10, 12))
sketch1.addConstraint(Sketcher.Constraint("Equal", 14, 16))
sketch1.addConstraint(Sketcher.Constraint("Equal", 18, 20))
sketch1.addConstraint(Sketcher.Constraint("Equal", 22, 24))
sketch1.addConstraint(Sketcher.Constraint("Equal", 26, 28))
sketch1.addConstraint(Sketcher.Constraint("Equal", 30, 32))
sketch1.addConstraint(Sketcher.Constraint("Equal", 34, 36))
sketch1.addConstraint(Sketcher.Constraint("Equal", 38, 40))
sketch1.addConstraint(Sketcher.Constraint("Equal", 42, 47))
sketch1.addConstraint(Sketcher.Constraint("Equal", 49, 51))
sketch1.addConstraint(Sketcher.Constraint("Equal", 53, 55))
sketch1.addConstraint(Sketcher.Constraint("Equal", 57, 59))
sketch1.addConstraint(Sketcher.Constraint("Equal", 61, 63))
sketch1.addConstraint(Sketcher.Constraint("Equal", 65, 67))
sketch1.addConstraint(Sketcher.Constraint("Equal", 69, 71))
sketch1.addConstraint(Sketcher.Constraint("Equal", 73, 75))
sketch1.addConstraint(Sketcher.Constraint("Equal", 77, 79))
sketch1.addConstraint(Sketcher.Constraint("DistanceY", 0, 2, 0, 1, Q("11 in")))
sketch1.addConstraint(Sketcher.Constraint("Diameter", 4, Q("0.125 in")))
sketch1.addConstraint(Sketcher.Constraint("DistanceX", 1, 1, 1, 2, Q("2.375 in")))
sketch1.addConstraint(Sketcher.Constraint("DistanceX", 7, 2, 7, 1, Q("0.375 in")))
sketch1.addConstraint(Sketcher.Constraint("DistanceX", -1, 1, 4, 3, Q("0.75 in")))
sketch1.addConstraint(Sketcher.Constraint("DistanceX", -1, 1, 9, 2, Q("2.25 in")))
sketch1.addConstraint(Sketcher.Constraint("DistanceY", -1, 1, 4, 3, Q("1.125 in")))
sketch1.addConstraint(Sketcher.Constraint("DistanceY", -1, 1, 5, 3, Q("2.875 in")))
sketch1.addConstraint(Sketcher.Constraint("DistanceY", -1, 1, 6, 3, Q("4.625 in")))
sketch1.addConstraint(Sketcher.Constraint("DistanceY", -1, 1, 43, 3, Q("6.375 in")))
sketch1.addConstraint(Sketcher.Constraint("DistanceY", -1, 1, 44, 3, Q("8.125 in")))
sketch1.addConstraint(Sketcher.Constraint("DistanceY", -1, 1, 45, 3, Q("9.875 in")))
sketch1.addConstraint(Sketcher.Constraint("DistanceY", -1, 1, 7, 2, Q("0.3125 in")))
sketch1.addConstraint(Sketcher.Constraint("DistanceY", -1, 1, 11, 2, Q("0.9375 in")))
sketch1.addConstraint(Sketcher.Constraint("DistanceY", -1, 1, 15, 2, Q("1.5625 in")))
sketch1.addConstraint(Sketcher.Constraint("DistanceY", -1, 1, 19, 2, Q("2.0625 in")))
sketch1.addConstraint(Sketcher.Constraint("DistanceY", -1, 1, 23, 2, Q("2.6875 in")))
sketch1.addConstraint(Sketcher.Constraint("DistanceY", -1, 1, 27, 2, Q("3.3125 in")))
sketch1.addConstraint(Sketcher.Constraint("DistanceY", -1, 1, 31, 2, Q("3.8125 in")))
sketch1.addConstraint(Sketcher.Constraint("DistanceY", -1, 1, 35, 2, Q("4.4375 in")))
sketch1.addConstraint(Sketcher.Constraint("DistanceY", -1, 1, 39, 2, Q("5.0625 in")))
sketch1.addConstraint(Sketcher.Constraint("DistanceY", -1, 1, 46, 2, Q("5.5625 in")))
sketch1.addConstraint(Sketcher.Constraint("DistanceY", -1, 1, 50, 2, Q("6.1875 in")))
sketch1.addConstraint(Sketcher.Constraint("DistanceY", -1, 1, 54, 2, Q("6.8125 in")))
sketch1.addConstraint(Sketcher.Constraint("DistanceY", -1, 1, 58, 2, Q("7.3125 in")))
sketch1.addConstraint(Sketcher.Constraint("DistanceY", -1, 1, 62, 2, Q("7.9375 in")))
sketch1.addConstraint(Sketcher.Constraint("DistanceY", -1, 1, 66, 2, Q("8.5625 in")))
sketch1.addConstraint(Sketcher.Constraint("DistanceY", -1, 1, 70, 2, Q("9.0625 in")))
sketch1.addConstraint(Sketcher.Constraint("DistanceY", -1, 1, 74, 2, Q("9.6875 in")))
sketch1.addConstraint(Sketcher.Constraint("DistanceY", -1, 1, 78, 2, Q("10.3125 in")))
pad1 = doc.addObject("PartDesign::Pad", "Pad")
body.addObject(pad1)
pad1.Profile = sketch1
pad1.Length = Q("0.125 in")
doc.recompute()

fillet = doc.addObject("PartDesign::Fillet", "Fillet")
body.addObject(fillet)
fillet.Base = (pad1, edges_at(pad1, [
    (0, -1.587, 279.4),
    (60.325, -1.587, 279.4),
    (0, -1.587, 0),
    (60.325, -1.587, 0),
]))
fillet.Radius = Q("0.2 in")

doc.recompute()
